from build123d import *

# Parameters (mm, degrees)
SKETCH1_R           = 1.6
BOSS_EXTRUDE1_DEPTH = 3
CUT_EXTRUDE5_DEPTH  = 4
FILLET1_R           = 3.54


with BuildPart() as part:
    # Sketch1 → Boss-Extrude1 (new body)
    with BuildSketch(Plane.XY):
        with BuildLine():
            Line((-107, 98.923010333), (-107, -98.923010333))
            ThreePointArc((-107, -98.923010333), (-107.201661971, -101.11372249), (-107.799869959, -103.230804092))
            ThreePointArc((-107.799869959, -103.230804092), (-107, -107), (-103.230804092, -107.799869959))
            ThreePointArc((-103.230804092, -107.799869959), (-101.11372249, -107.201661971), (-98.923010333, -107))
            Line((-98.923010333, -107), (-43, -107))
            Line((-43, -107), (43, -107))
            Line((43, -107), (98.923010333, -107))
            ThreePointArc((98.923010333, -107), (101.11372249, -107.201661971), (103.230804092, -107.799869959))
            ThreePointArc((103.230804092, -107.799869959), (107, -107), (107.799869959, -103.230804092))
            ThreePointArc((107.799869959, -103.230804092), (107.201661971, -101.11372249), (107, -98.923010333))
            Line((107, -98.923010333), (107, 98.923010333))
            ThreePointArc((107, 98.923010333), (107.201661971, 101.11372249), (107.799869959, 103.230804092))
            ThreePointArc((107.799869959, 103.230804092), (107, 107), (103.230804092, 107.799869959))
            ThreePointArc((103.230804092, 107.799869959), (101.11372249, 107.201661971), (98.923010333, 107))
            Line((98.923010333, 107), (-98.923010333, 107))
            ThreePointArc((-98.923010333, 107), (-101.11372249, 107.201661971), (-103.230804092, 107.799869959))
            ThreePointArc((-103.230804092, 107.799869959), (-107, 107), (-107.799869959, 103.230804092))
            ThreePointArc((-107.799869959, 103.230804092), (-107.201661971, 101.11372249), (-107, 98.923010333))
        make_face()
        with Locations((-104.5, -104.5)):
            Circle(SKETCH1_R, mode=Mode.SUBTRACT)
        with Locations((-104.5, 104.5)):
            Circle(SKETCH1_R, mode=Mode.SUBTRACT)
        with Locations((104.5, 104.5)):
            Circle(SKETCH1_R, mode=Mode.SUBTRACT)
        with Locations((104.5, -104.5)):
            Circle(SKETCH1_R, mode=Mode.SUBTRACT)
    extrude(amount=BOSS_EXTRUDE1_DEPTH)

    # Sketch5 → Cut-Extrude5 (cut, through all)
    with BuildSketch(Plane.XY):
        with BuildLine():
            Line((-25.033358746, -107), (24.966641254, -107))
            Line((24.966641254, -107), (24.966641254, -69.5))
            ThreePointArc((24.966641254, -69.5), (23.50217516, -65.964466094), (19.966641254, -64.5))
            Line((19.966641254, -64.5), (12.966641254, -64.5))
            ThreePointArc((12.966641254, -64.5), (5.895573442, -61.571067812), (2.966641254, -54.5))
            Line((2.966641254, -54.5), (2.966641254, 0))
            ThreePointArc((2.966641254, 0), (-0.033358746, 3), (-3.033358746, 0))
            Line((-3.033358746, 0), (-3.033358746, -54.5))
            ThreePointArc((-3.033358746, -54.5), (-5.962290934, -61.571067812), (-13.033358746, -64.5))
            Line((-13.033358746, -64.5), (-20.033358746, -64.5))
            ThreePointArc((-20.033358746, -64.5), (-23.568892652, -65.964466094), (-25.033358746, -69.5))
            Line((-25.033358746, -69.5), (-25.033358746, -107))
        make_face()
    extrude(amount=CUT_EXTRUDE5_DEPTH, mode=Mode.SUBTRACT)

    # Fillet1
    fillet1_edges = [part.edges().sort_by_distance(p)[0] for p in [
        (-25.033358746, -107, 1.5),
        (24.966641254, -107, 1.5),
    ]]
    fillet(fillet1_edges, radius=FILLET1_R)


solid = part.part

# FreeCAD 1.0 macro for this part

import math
import FreeCAD as App
import Part
import Sketcher
from FreeCAD import Vector
Q = App.Units.Quantity


def edges_at(feature, points):
    """Names of the edges that pass closest to the given points."""
    edges = feature.Shape.Edges
    near = lambda p: min(range(len(edges)), key=lambda i: edges[i].distToShape(Part.Vertex(*p))[0])
    return sorted({f"Edge{near(p) + 1}" for p in points})

doc = App.newDocument("Part")
params = doc.addObject("Spreadsheet::Sheet", "Params")
for row, (alias, value) in enumerate([
    ("sketch1_radius", "12 mm"),
    ("sketch1_diameter", "3.2 mm"),
    ("pad1_length", "3 mm"),
    ("sketch2_radius", "5 mm"),
    ("sketch2_radius2", "10 mm"),
    ("sketch2_radius3", "3 mm"),
    ("sketch2_width", "50 mm"),
    ("sketch2_height", "37.5 mm"),
    ("fillet_radius", "3.54 mm"),
], start=1):
    params.set(f"A{row}", alias)
    params.set(f"B{row}", "=" + value)
    params.setAlias(f"B{row}", alias)

body = doc.addObject("PartDesign::Body", "Body")

# Sketch on XY plane
sketch1 = doc.addObject("Sketcher::SketchObject", "Sketch")
body.addObject(sketch1)
sketch1.AttachmentSupport = (doc.XY_Plane, [""])
sketch1.MapMode = "FlatFace"
sketch1.addGeometry(Part.LineSegment(Vector(-107, 98.9, 0), Vector(-107, -98.9, 0)), False)
sketch1.addGeometry(Part.ArcOfCircle(Part.Circle(Vector(-119, -98.9, 0), Vector(0, 0, 1), 12), math.radians(-21), math.radians(0)), False)
sketch1.addGeometry(Part.ArcOfCircle(Part.Circle(Vector(-104.5, -104.5, 0), Vector(0, 0, 1), 3.5), math.radians(159), math.radians(291)), False)
sketch1.addGeometry(Part.ArcOfCircle(Part.Circle(Vector(-98.9, -119, 0), Vector(0, 0, 1), 12), math.radians(90), math.radians(111)), False)
sketch1.addGeometry(Part.LineSegment(Vector(-98.9, -107, 0), Vector(98.9, -107, 0)), False)
sketch1.addGeometry(Part.ArcOfCircle(Part.Circle(Vector(98.9, -119, 0), Vector(0, 0, 1), 12), math.radians(69), math.radians(90)), False)
sketch1.addGeometry(Part.ArcOfCircle(Part.Circle(Vector(104.5, -104.5, 0), Vector(0, 0, 1), 3.5), math.radians(-111), math.radians(21)), False)
sketch1.addGeometry(Part.ArcOfCircle(Part.Circle(Vector(119, -98.9, 0), Vector(0, 0, 1), 12), math.radians(180), math.radians(201)), False)
sketch1.addGeometry(Part.LineSegment(Vector(107, -98.9, 0), Vector(107, 98.9, 0)), False)
sketch1.addGeometry(Part.ArcOfCircle(Part.Circle(Vector(119, 98.9, 0), Vector(0, 0, 1), 12), math.radians(159), math.radians(180)), False)
sketch1.addGeometry(Part.ArcOfCircle(Part.Circle(Vector(104.5, 104.5, 0), Vector(0, 0, 1), 3.5), math.radians(-21), math.radians(111)), False)
sketch1.addGeometry(Part.ArcOfCircle(Part.Circle(Vector(98.9, 119, 0), Vector(0, 0, 1), 12), math.radians(-90), math.radians(-69)), False)
sketch1.addGeometry(Part.LineSegment(Vector(98.9, 107, 0), Vector(-98.9, 107, 0)), False)
sketch1.addGeometry(Part.ArcOfCircle(Part.Circle(Vector(-98.9, 119, 0), Vector(0, 0, 1), 12), math.radians(-111), math.radians(-90)), False)
sketch1.addGeometry(Part.ArcOfCircle(Part.Circle(Vector(-104.5, 104.5, 0), Vector(0, 0, 1), 3.5), math.radians(69), math.radians(201)), False)
sketch1.addGeometry(Part.ArcOfCircle(Part.Circle(Vector(-119, 98.9, 0), Vector(0, 0, 1), 12), math.radians(0), math.radians(21)), False)
sketch1.addGeometry(Part.Circle(Vector(-104.5, -104.5, 0), Vector(0, 0, 1), 1.6), False)
sketch1.addGeometry(Part.Circle(Vector(104.5, -104.5, 0), Vector(0, 0, 1), 1.6), False)
sketch1.addGeometry(Part.Circle(Vector(-104.5, 104.5, 0), Vector(0, 0, 1), 1.6), False)
sketch1.addGeometry(Part.Circle(Vector(104.5, 104.5, 0), Vector(0, 0, 1), 1.6), False)
sketch1.addConstraint(Sketcher.Constraint("Tangent", 0, 2, 1, 2))
sketch1.addConstraint(Sketcher.Constraint("Tangent", 1, 1, 2, 1))
sketch1.addConstraint(Sketcher.Constraint("Tangent", 2, 2, 3, 2))
sketch1.addConstraint(Sketcher.Constraint("Tangent", 3, 1, 4, 1))
sketch1.addConstraint(Sketcher.Constraint("Tangent", 4, 2, 5, 2))
sketch1.addConstraint(Sketcher.Constraint("Tangent", 5, 1, 6, 1))
sketch1.addConstraint(Sketcher.Constraint("Tangent", 6, 2, 7, 2))
sketch1.addConstraint(Sketcher.Constraint("Tangent", 7, 1, 8, 1))
sketch1.addConstraint(Sketcher.Constraint("Tangent", 8, 2, 9, 2))
sketch1.addConstraint(Sketcher.Constraint("Tangent", 9, 1, 10, 1))
sketch1.addConstraint(Sketcher.Constraint("Tangent", 10, 2, 11, 2))
sketch1.addConstraint(Sketcher.Constraint("Tangent", 11, 1, 12, 1))
sketch1.addConstraint(Sketcher.Constraint("Tangent", 12, 2, 13, 2))
sketch1.addConstraint(Sketcher.Constraint("Tangent", 13, 1, 14, 1))
sketch1.addConstraint(Sketcher.Constraint("Tangent", 14, 2, 15, 2))
sketch1.addConstraint(Sketcher.Constraint("Tangent", 15, 1, 0, 1))
sketch1.addConstraint(Sketcher.Constraint("Vertical", 0))
sketch1.addConstraint(Sketcher.Constraint("Horizontal", 4))
sketch1.addConstraint(Sketcher.Constraint("Vertical", 8))
sketch1.addConstraint(Sketcher.Constraint("Horizontal", 12))
sketch1.addConstraint(Sketcher.Constraint("Coincident", 16, 3, 2, 3))
sketch1.addConstraint(Sketcher.Constraint("Coincident", 17, 3, 6, 3))
sketch1.addConstraint(Sketcher.Constraint("Coincident", 18, 3, 14, 3))
sketch1.addConstraint(Sketcher.Constraint("Coincident", 19, 3, 10, 3))
sketch1.addConstraint(Sketcher.Constraint("Equal", 1, 3))
sketch1.addConstraint(Sketcher.Constraint("Equal", 3, 5))
sketch1.addConstraint(Sketcher.Constraint("Equal", 2, 6))
sketch1.addConstraint(Sketcher.Constraint("Equal", 5, 7))
sketch1.addConstraint(Sketcher.Constraint("Equal", 7, 9))
sketch1.addConstraint(Sketcher.Constraint("Equal", 6, 10))
sketch1.addConstraint(Sketcher.Constraint("Equal", 9, 11))
sketch1.addConstraint(Sketcher.Constraint("Equal", 11, 13))
sketch1.addConstraint(Sketcher.Constraint("Equal", 10, 14))
sketch1.addConstraint(Sketcher.Constraint("Equal", 13, 15))
sketch1.addConstraint(Sketcher.Constraint("Equal", 16, 17))
sketch1.addConstraint(Sketcher.Constraint("Equal", 17, 18))
sketch1.addConstraint(Sketcher.Constraint("Equal", 18, 19))
sketch1.addConstraint(Sketcher.Constraint("Symmetric", 1, 3, 9, 3, -1, 1))
sketch1.addConstraint(Sketcher.Constraint("Symmetric", 3, 3, 11, 3, -1, 1))
sketch1.addConstraint(Sketcher.Constraint("Symmetric", 6, 3, 14, 3, -1, 1))
sketch1.addConstraint(Sketcher.Constraint("Symmetric", 2, 3, 6, 3, -2))
sketch1.addConstraint(Sketcher.Constraint("Equal", 12, 0))
sketch1.addConstraint(Sketcher.Constraint("Radius", 1, Q("12 mm")))
sketch1.addConstraint(Sketcher.Constraint("Diameter", 16, Q("3.2 mm")))
sketch1.addConstraint(Sketcher.Constraint("DistanceX", 1, 3, -1, 1, Q("119 mm")))
sketch1.addConstraint(Sketcher.Constraint("DistanceY", 3, 3, -1, 1, Q("119 mm")))
sketch1.addConstraint(Sketcher.Constraint("DistanceX", 2, 3, 6, 3, Q("209 mm")))
sketch1.addConstraint(Sketcher.Constraint("Radius", 2, Q("3.535534 mm")))
sketch1.setExpression("Constraints[42]", "Params.sketch1_radius")
sketch1.setExpression("Constraints[43]", "Params.sketch1_diameter")
pad1 = doc.addObject("PartDesign::Pad", "Pad")
body.addObject(pad1)
pad1.Profile = sketch1
pad1.setExpression("Length", "Params.pad1_length")

# Sketch on XY plane
sketch2 = doc.addObject("Sketcher::SketchObject", "Sketch001")
body.addObject(sketch2)
sketch2.AttachmentSupport = (doc.XY_Plane, [""])
sketch2.MapMode = "FlatFace"
sketch2.addGeometry(Part.LineSegment(Vector(-25, -107, 0), Vector(25, -107, 0)), False)
sketch2.addGeometry(Part.LineSegment(Vector(25, -107, 0), Vector(25, -69.5, 0)), False)
sketch2.addGeometry(Part.ArcOfCircle(Part.Circle(Vector(20, -69.5, 0), Vector(0, 0, 1), 5), math.radians(0), math.radians(90)), False)
sketch2.addGeometry(Part.LineSegment(Vector(20, -64.5, 0), Vector(13, -64.5, 0)), False)
sketch2.addGeometry(Part.ArcOfCircle(Part.Circle(Vector(13, -54.5, 0), Vector(0, 0, 1), 10), math.radians(180), math.radians(270)), False)
sketch2.addGeometry(Part.LineSegment(Vector(3, -54.5, 0), Vector(3, 0, 0)), False)
sketch2.addGeometry(Part.ArcOfCircle(Part.Circle(Vector(0, 0, 0), Vector(0, 0, 1), 3), math.radians(0), math.radians(180)), False)
sketch2.addGeometry(Part.LineSegment(Vector(-3, 0, 0), Vector(-3, -54.5, 0)), False)
sketch2.addGeometry(Part.ArcOfCircle(Part.Circle(Vector(-13, -54.5, 0), Vector(0, 0, 1), 10), math.radians(-90), math.radians(0)), False)
sketch2.addGeometry(Part.LineSegment(Vector(-13, -64.5, 0), Vector(-20, -64.5, 0)), False)
sketch2.addGeometry(Part.ArcOfCircle(Part.Circle(Vector(-20, -69.5, 0), Vector(0, 0, 1), 5), math.radians(90), math.radians(180)), False)
sketch2.addGeometry(Part.LineSegment(Vector(-25, -69.5, 0), Vector(-25, -107, 0)), False)
sketch2.addConstraint(Sketcher.Constraint("Coincident", 0, 2, 1, 1))
sketch2.addConstraint(Sketcher.Constraint("Tangent", 1, 2, 2, 1))
sketch2.addConstraint(Sketcher.Constraint("Tangent", 2, 2, 3, 1))
sketch2.addConstraint(Sketcher.Constraint("Tangent", 3, 2, 4, 2))
sketch2.addConstraint(Sketcher.Constraint("Tangent", 4, 1, 5, 1))
sketch2.addConstraint(Sketcher.Constraint("Tangent", 5, 2, 6, 1))
sketch2.addConstraint(Sketcher.Constraint("Tangent", 6, 2, 7, 1))
sketch2.addConstraint(Sketcher.Constraint("Tangent", 7, 2, 8, 2))
sketch2.addConstraint(Sketcher.Constraint("Tangent", 8, 1, 9, 1))
sketch2.addConstraint(Sketcher.Constraint("Tangent", 9, 2, 10, 1))
sketch2.addConstraint(Sketcher.Constraint("Tangent", 10, 2, 11, 1))
sketch2.addConstraint(Sketcher.Constraint("Coincident", 11, 2, 0, 1))
sketch2.addConstraint(Sketcher.Constraint("Horizontal", 0))
sketch2.addConstraint(Sketcher.Constraint("Vertical", 1))
sketch2.addConstraint(Sketcher.Constraint("Horizontal", 3))
sketch2.addConstraint(Sketcher.Constraint("Vertical", 5))
sketch2.addConstraint(Sketcher.Constraint("Vertical", 7))
sketch2.addConstraint(Sketcher.Constraint("Horizontal", 9))
sketch2.addConstraint(Sketcher.Constraint("Vertical", 11))
sketch2.addConstraint(Sketcher.Constraint("Equal", 4, 8))
sketch2.addConstraint(Sketcher.Constraint("Equal", 2, 10))
sketch2.addConstraint(Sketcher.Constraint("PointOnObject", 6, 3, -1))
sketch2.addConstraint(Sketcher.Constraint("Horizontal", 4, 3, 8, 3))
sketch2.addConstraint(Sketcher.Constraint("Equal", 3, 9))
sketch2.addConstraint(Sketcher.Constraint("Radius", 2, Q("5 mm")))
sketch2.addConstraint(Sketcher.Constraint("Radius", 4, Q("10 mm")))
sketch2.addConstraint(Sketcher.Constraint("Radius", 6, Q("3 mm")))
sketch2.addConstraint(Sketcher.Constraint("DistanceX", 0, 1, 0, 2, Q("50 mm")))
sketch2.addConstraint(Sketcher.Constraint("DistanceY", 1, 1, 1, 2, Q("37.5 mm")))
sketch2.addConstraint(Sketcher.Constraint("DistanceY", 5, 1, 5, 2, Q("54.5 mm")))
sketch2.addConstraint(Sketcher.Constraint("DistanceX", -1, 1, 2, 3, Q("19.966641 mm")))
sketch2.setExpression("Constraints[24]", "Params.sketch2_radius")
sketch2.setExpression("Constraints[25]", "Params.sketch2_radius2")
sketch2.setExpression("Constraints[26]", "Params.sketch2_radius3")
sketch2.setExpression("Constraints[27]", "Params.sketch2_width")
sketch2.setExpression("Constraints[28]", "Params.sketch2_height")
pocket1 = doc.addObject("PartDesign::Pocket", "Pocket")
body.addObject(pocket1)
pocket1.Profile = sketch2
pocket1.Type = "ThroughAll"
pocket1.Reversed = True
doc.recompute()

fillet = doc.addObject("PartDesign::Fillet", "Fillet")
body.addObject(fillet)
fillet.Base = (pocket1, edges_at(pocket1, [(-25.033, -107, 1.5), (24.967, -107, 1.5)]))
fillet.setExpression("Radius", "Params.fillet_radius")

doc.recompute()
